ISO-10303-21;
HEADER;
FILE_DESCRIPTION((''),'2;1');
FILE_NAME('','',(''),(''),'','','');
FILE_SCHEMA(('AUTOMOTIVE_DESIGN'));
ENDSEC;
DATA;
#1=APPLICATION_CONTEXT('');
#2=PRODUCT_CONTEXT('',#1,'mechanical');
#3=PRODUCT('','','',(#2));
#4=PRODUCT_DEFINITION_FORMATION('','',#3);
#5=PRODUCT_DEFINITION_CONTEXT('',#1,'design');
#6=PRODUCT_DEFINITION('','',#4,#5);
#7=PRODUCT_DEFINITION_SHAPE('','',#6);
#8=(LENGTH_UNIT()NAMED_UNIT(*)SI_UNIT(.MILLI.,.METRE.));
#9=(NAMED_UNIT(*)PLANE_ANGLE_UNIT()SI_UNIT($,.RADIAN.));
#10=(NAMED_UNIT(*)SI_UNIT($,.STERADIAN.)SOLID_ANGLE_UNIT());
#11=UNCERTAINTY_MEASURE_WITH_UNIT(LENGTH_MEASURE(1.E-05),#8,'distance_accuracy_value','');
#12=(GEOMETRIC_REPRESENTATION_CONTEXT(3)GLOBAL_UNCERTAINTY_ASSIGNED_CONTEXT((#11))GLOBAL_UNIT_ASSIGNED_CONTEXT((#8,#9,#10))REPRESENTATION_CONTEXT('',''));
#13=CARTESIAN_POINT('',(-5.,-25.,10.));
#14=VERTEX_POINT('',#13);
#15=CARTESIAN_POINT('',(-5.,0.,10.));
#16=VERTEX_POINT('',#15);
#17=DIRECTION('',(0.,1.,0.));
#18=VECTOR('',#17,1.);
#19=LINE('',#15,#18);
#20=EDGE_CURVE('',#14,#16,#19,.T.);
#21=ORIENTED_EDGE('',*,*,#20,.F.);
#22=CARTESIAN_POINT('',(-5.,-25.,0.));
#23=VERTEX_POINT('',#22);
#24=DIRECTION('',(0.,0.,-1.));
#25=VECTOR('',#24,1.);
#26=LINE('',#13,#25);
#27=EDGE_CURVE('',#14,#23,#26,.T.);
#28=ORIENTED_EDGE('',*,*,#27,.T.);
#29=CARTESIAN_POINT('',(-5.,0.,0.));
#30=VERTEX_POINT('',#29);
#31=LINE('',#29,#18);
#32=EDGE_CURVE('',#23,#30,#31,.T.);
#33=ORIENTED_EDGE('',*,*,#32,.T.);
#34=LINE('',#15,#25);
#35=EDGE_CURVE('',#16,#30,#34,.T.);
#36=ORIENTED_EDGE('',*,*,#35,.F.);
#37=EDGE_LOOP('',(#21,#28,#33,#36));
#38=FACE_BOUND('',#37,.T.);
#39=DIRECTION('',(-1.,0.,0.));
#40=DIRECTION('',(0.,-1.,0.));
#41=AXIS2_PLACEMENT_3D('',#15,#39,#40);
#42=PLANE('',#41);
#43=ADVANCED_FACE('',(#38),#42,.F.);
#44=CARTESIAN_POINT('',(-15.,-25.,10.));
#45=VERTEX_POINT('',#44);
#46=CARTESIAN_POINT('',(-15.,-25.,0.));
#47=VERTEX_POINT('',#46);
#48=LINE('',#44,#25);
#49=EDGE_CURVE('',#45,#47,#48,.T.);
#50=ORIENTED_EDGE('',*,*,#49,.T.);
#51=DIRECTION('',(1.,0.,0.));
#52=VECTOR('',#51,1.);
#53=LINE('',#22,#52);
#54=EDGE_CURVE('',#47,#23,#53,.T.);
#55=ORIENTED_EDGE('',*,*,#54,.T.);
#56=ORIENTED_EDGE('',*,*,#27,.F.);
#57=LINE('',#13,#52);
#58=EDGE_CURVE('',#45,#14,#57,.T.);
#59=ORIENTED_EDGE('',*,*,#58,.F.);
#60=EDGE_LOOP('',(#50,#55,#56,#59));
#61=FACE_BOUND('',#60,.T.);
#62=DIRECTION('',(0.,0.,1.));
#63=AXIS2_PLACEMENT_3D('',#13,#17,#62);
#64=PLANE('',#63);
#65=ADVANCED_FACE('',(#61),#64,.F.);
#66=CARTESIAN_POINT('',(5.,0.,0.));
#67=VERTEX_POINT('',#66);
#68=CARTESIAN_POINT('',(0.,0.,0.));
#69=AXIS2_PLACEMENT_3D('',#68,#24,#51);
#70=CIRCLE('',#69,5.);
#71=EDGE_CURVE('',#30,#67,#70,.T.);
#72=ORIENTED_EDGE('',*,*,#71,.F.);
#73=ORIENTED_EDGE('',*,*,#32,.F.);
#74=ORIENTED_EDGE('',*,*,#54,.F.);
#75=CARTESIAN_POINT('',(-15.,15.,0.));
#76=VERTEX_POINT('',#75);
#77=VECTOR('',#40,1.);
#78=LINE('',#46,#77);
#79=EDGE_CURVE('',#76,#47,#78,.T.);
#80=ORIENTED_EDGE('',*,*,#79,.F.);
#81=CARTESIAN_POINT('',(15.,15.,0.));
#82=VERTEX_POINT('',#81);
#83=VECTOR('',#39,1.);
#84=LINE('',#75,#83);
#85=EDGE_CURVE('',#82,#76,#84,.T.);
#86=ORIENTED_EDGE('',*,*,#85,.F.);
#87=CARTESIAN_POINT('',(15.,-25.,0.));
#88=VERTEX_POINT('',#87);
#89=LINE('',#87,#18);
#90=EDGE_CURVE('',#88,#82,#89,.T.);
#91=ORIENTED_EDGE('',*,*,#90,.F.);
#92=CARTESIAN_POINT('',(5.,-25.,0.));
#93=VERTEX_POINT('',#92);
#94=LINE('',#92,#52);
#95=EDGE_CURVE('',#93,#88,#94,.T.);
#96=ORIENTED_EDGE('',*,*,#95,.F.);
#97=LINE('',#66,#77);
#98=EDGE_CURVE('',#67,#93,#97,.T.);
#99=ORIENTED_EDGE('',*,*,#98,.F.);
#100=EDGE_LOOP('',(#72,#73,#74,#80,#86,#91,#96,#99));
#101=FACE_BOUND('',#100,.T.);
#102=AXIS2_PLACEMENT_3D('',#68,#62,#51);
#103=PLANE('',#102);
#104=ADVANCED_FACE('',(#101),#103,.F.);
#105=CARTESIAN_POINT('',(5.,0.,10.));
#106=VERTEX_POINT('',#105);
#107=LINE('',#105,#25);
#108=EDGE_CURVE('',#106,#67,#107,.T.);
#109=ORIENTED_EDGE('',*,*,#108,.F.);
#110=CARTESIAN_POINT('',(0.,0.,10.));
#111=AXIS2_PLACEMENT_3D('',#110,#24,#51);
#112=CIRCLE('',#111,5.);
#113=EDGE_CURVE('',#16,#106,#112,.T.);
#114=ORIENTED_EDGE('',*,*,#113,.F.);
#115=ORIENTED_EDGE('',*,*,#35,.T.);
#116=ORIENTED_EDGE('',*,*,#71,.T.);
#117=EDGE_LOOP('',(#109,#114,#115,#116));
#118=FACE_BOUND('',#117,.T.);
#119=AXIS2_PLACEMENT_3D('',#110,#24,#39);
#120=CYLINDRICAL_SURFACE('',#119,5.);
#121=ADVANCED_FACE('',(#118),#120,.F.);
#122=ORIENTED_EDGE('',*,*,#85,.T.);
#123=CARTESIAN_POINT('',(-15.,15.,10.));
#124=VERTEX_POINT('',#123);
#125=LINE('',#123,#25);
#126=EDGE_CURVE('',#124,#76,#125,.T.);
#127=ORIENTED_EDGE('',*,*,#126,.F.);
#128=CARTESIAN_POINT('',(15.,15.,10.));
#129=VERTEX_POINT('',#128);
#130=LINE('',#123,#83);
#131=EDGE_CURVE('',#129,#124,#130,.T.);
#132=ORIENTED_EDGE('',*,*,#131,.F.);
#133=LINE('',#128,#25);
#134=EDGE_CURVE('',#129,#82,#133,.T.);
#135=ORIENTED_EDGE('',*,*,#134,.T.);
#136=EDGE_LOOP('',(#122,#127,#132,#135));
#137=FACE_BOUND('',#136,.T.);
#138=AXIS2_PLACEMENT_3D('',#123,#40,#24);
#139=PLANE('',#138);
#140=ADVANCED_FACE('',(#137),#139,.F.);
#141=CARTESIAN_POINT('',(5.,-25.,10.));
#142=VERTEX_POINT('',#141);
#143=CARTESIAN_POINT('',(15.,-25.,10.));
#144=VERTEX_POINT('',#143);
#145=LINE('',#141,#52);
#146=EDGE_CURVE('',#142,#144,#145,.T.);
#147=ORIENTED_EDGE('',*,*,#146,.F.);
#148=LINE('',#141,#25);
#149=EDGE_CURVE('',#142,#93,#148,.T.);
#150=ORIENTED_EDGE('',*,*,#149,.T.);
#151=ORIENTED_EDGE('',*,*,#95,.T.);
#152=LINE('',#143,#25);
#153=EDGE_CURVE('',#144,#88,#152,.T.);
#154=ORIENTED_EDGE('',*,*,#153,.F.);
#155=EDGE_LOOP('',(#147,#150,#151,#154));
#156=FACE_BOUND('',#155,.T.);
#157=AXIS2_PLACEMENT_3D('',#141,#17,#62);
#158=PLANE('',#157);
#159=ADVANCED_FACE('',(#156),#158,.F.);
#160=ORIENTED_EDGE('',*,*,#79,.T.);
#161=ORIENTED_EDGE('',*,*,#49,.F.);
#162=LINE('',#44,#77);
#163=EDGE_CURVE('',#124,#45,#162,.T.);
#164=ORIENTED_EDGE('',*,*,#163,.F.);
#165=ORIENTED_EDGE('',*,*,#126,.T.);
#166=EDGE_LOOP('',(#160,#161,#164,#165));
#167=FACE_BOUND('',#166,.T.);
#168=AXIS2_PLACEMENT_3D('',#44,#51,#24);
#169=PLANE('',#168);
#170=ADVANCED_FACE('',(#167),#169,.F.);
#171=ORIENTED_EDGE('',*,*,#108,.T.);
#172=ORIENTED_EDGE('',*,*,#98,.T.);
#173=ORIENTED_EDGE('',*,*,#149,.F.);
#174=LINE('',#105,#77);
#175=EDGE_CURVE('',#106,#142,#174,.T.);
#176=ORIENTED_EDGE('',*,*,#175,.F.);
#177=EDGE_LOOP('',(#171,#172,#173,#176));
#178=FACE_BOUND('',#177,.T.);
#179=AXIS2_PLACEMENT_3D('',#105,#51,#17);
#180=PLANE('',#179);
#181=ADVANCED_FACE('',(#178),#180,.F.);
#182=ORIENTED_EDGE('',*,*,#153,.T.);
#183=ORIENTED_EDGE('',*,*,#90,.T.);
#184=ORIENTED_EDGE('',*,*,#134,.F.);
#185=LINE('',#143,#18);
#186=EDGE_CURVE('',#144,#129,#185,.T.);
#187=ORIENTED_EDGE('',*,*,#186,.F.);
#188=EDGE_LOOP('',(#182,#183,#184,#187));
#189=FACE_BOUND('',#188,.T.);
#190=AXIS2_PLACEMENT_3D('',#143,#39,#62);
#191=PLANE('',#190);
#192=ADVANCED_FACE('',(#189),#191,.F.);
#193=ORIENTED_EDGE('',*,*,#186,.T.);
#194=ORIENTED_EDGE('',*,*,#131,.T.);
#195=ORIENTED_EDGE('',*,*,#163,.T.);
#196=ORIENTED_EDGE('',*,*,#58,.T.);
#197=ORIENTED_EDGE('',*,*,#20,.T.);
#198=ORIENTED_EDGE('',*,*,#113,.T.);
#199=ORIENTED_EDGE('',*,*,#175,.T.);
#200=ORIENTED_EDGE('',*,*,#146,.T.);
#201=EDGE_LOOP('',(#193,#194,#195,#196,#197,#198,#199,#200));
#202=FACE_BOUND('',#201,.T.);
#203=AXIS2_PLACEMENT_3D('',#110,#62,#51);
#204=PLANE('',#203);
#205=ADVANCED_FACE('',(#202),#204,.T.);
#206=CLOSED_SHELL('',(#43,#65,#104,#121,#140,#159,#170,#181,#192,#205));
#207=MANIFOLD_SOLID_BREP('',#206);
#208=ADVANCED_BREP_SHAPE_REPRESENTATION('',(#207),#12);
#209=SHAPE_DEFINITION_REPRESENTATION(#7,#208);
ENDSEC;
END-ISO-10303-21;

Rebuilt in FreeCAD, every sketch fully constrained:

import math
import FreeCAD as App
import Part
import Sketcher
Q = App.Units.Quantity

doc = App.newDocument("Part")
body = doc.addObject("PartDesign::Body", "Body")

# Sketch on XY plane
sketch1 = body.newObject("Sketcher::SketchObject", "Sketch")
sketch1.AttachmentSupport = (doc.getObject("XY_Plane"), [""])
sketch1.MapMode = "FlatFace"
sketch1.addGeometry(Part.LineSegment(App.Vector(-5, -25, 0), App.Vector(-5, 0, 0)), False)
sketch1.addGeometry(Part.ArcOfCircle(Part.Circle(App.Vector(0, 0, 0), App.Vector(0, 0, 1), 5), math.radians(0), math.radians(180)), False)
sketch1.addGeometry(Part.LineSegment(App.Vector(5, 0, 0), App.Vector(5, -25, 0)), False)
sketch1.addGeometry(Part.LineSegment(App.Vector(5, -25, 0), App.Vector(15, -25, 0)), False)
sketch1.addGeometry(Part.LineSegment(App.Vector(15, -25, 0), App.Vector(15, 15, 0)), False)
sketch1.addGeometry(Part.LineSegment(App.Vector(15, 15, 0), App.Vector(-15, 15, 0)), False)
sketch1.addGeometry(Part.LineSegment(App.Vector(-15, 15, 0), App.Vector(-15, -25, 0)), False)
sketch1.addGeometry(Part.LineSegment(App.Vector(-15, -25, 0), App.Vector(-5, -25, 0)), False)
sketch1.addConstraint(Sketcher.Constraint("Tangent", 0, 2, 1, 2))
sketch1.addConstraint(Sketcher.Constraint("Tangent", 1, 1, 2, 1))
sketch1.addConstraint(Sketcher.Constraint("Coincident", 2, 2, 3, 1))
sketch1.addConstraint(Sketcher.Constraint("Coincident", 3, 2, 4, 1))
sketch1.addConstraint(Sketcher.Constraint("Coincident", 4, 2, 5, 1))
sketch1.addConstraint(Sketcher.Constraint("Coincident", 5, 2, 6, 1))
sketch1.addConstraint(Sketcher.Constraint("Coincident", 6, 2, 7, 1))
sketch1.addConstraint(Sketcher.Constraint("Coincident", 7, 2, 0, 1))
sketch1.addConstraint(Sketcher.Constraint("Vertical", 0))
sketch1.addConstraint(Sketcher.Constraint("Vertical", 2))
sketch1.addConstraint(Sketcher.Constraint("Horizontal", 3))
sketch1.addConstraint(Sketcher.Constraint("Vertical", 4))
sketch1.addConstraint(Sketcher.Constraint("Horizontal", 5))
sketch1.addConstraint(Sketcher.Constraint("Vertical", 6))
sketch1.addConstraint(Sketcher.Constraint("Horizontal", 7))
sketch1.addConstraint(Sketcher.Constraint("Coincident", 1, 3, -1, 1))
sketch1.addConstraint(Sketcher.Constraint("Symmetric", 3, 2, 6, 2, -2))
sketch1.addConstraint(Sketcher.Constraint("Radius", 1, Q("5 mm")))
sketch1.addConstraint(Sketcher.Constraint("DistanceX", 3, 1, 3, 2, Q("10 mm")))
sketch1.addConstraint(Sketcher.Constraint("DistanceY", 0, 1, 0, 2, Q("25 mm")))
sketch1.addConstraint(Sketcher.Constraint("DistanceY", 4, 1, 4, 2, Q("40 mm")))
pad1 = body.newObject("PartDesign::Pad", "Pad")
pad1.Profile = sketch1
pad1.Length = 10

doc.recompute()
